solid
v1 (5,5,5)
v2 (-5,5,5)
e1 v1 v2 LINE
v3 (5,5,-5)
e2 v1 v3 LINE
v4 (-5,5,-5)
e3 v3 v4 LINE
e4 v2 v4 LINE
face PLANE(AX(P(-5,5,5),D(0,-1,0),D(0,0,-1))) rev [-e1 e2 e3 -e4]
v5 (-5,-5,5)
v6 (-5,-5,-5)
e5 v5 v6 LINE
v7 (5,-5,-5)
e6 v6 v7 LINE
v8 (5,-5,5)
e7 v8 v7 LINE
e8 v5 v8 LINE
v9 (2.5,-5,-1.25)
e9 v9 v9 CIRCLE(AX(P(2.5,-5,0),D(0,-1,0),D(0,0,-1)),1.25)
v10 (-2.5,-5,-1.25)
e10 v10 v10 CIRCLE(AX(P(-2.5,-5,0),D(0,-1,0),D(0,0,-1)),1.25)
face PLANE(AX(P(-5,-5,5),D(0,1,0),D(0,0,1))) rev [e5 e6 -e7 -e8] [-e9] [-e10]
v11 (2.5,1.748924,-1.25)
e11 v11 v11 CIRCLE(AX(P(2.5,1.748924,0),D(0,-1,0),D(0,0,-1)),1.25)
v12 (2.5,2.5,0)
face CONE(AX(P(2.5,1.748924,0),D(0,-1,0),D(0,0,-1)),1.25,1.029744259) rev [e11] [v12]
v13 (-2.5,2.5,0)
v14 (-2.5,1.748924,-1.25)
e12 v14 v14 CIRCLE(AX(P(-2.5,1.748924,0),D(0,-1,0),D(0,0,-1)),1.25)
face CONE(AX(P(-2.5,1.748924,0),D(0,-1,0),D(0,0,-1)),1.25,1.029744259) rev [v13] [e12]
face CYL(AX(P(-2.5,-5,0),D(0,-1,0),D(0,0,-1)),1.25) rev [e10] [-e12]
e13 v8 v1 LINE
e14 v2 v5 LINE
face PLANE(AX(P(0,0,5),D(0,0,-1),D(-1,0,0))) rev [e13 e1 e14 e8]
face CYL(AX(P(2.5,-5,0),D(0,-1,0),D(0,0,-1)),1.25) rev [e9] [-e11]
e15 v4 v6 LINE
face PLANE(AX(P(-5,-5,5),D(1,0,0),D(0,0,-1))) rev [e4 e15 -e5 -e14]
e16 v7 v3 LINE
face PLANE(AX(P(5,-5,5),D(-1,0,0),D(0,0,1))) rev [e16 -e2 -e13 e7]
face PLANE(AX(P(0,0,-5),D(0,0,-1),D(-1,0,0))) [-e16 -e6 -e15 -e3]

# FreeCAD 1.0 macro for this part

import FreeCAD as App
import Part
import Sketcher

V = App.Vector


def add_polygon(sketch, points):
    """Adds a closed chain of lines whose ends are joined by coincident constraints."""
    first, n = sketch.GeometryCount, len(points)
    for a, b in zip(points, points[1:] + points[:1]):
        sketch.addGeometry(Part.LineSegment(App.Vector(*a, 0), App.Vector(*b, 0)), False)
    for i in range(n):
        sketch.addConstraint(Sketcher.Constraint("Coincident", first + i, 2, first + (i + 1) % n, 1))

doc = App.newDocument("Part")
params = doc.addObject("Spreadsheet::Sheet", "Params")
for row, (alias, value) in enumerate([
    ("sketch1_width", "10 mm"),
    ("pad1_length", "10 mm"),
    ("sketch2_diameter", "2.5 mm"),
    ("hole_diameter", "2.5 mm"),
    ("hole_depth", "6.748924 mm"),
], start=1):
    params.set(f"A{row}", alias)
    params.set(f"B{row}", "=" + value)
    params.setAlias(f"B{row}", alias)

body = doc.addObject("PartDesign::Body", "Body")

# Sketch on XY plane
sketch1 = body.newObject("Sketcher::SketchObject", "Sketch")
sketch1.AttachmentSupport = (doc.getObject("XY_Plane"), [""])
sketch1.MapMode = "FlatFace"
add_polygon(sketch1, [(-5, 5), (-5, -5), (5, -5), (5, 5)])  # lines 0-3
sketch1.addConstraint(Sketcher.Constraint("Vertical", 0))
sketch1.addConstraint(Sketcher.Constraint("Horizontal", 1))
sketch1.addConstraint(Sketcher.Constraint("Vertical", 2))
sketch1.addConstraint(Sketcher.Constraint("Horizontal", 3))
sketch1.addConstraint(Sketcher.Constraint("Symmetric", 0, 2, 2, 2, -1, 1))
sketch1.addConstraint(Sketcher.Constraint("Equal", 3, 0))
sketch1.addConstraint(Sketcher.Constraint("DistanceX", 1, 1, 1, 2, 10.0))
sketch1.setExpression("Constraints[10]", "Params.sketch1_width")
pad1 = body.newObject("PartDesign::Pad", "Pad")
pad1.Profile = sketch1
pad1.setExpression("Length", "Params.pad1_length")
pad1.Midplane = True

# Sketch on XZ plane
sketch2 = body.newObject("Sketcher::SketchObject", "Sketch001")
sketch2.AttachmentSupport = (doc.getObject("XZ_Plane"), [""])
sketch2.MapMode = "FlatFace"
sketch2.AttachmentOffset = App.Placement(V(0, 0, 5), App.Rotation())
sketch2.addGeometry(Part.Circle(V(2.5, 0, 0), V(0, 0, 1), 1.2), False)
sketch2.addGeometry(Part.Circle(V(-2.5, 0, 0), V(0, 0, 1), 1.2), False)
sketch2.addConstraint(Sketcher.Constraint("Equal", 0, 1))
sketch2.addConstraint(Sketcher.Constraint("Symmetric", 0, 3, 1, 3, -1, 1))
sketch2.addConstraint(Sketcher.Constraint("PointOnObject", 0, 3, -1))
sketch2.addConstraint(Sketcher.Constraint("Diameter", 0, 2.5))
sketch2.addConstraint(Sketcher.Constraint("DistanceX", 1, 3, 0, 3, 5.0))
sketch2.setExpression("Constraints[3]", "Params.sketch2_diameter")
doc.recompute()
hole = body.newObject("PartDesign::Hole", "Hole")
hole.Profile = sketch2
hole.ThreadType = "None"
hole.setExpression("Diameter", "Params.hole_diameter")
hole.DepthType = "Dimension"
hole.setExpression("Depth", "Params.hole_depth")
hole.DrillPoint = "Angled"
hole.DrillPointAngle = 118

doc.recompute()
